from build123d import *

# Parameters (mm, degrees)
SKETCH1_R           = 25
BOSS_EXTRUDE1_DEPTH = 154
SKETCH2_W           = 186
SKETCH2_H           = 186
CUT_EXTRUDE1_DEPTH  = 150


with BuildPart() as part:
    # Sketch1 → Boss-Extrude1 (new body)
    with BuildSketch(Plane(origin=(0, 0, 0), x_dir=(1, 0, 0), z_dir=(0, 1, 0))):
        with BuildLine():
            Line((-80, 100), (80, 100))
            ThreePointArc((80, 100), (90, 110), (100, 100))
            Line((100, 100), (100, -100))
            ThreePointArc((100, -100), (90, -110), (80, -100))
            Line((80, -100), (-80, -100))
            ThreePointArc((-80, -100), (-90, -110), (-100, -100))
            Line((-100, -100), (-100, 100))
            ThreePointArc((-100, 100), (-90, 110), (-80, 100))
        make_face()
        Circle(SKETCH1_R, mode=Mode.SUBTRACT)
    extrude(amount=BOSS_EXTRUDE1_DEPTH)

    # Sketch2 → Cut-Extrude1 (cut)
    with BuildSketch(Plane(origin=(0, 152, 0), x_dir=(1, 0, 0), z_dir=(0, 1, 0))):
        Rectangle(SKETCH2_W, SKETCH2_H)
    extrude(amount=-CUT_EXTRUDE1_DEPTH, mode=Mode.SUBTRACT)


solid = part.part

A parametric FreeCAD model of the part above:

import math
import FreeCAD as App
import Part
import Sketcher

V = App.Vector
Q = App.Units.Quantity

doc = App.newDocument("Part")
body = doc.addObject("PartDesign::Body", "Body")

# Sketch on XZ plane
sketch1 = doc.addObject("Sketcher::SketchObject", "Sketch")
body.addObject(sketch1)
sketch1.AttachmentSupport = (doc.XZ_Plane, [""])
sketch1.MapMode = "FlatFace"
sketch1.addGeometry(Part.LineSegment(V(80, -100, 0), V(-80, -100, 0)), False)
sketch1.addGeometry(Part.ArcOfCircle(Part.Circle(V(-90, -100, 0), V(0, 0, 1), 10), math.radians(180), math.radians(360)), False)
sketch1.addGeometry(Part.LineSegment(V(-100, -100, 0), V(-100, 100, 0)), False)
sketch1.addGeometry(Part.ArcOfCircle(Part.Circle(V(-90, 100, 0), V(0, 0, 1), 10), math.radians(0), math.radians(180)), False)
sketch1.addGeometry(Part.LineSegment(V(-80, 100, 0), V(80, 100, 0)), False)
sketch1.addGeometry(Part.ArcOfCircle(Part.Circle(V(90, 100, 0), V(0, 0, 1), 10), math.radians(0), math.radians(180)), False)
sketch1.addGeometry(Part.LineSegment(V(100, 100, 0), V(100, -100, 0)), False)
sketch1.addGeometry(Part.ArcOfCircle(Part.Circle(V(90, -100, 0), V(0, 0, 1), 10), math.radians(180), math.radians(360)), False)
sketch1.addGeometry(Part.Circle(V(0, 0, 0), V(0, 0, 1), 25), False)
sketch1.addConstraint(Sketcher.Constraint("Coincident", 0, 2, 1, 2))
sketch1.addConstraint(Sketcher.Constraint("Tangent", 1, 1, 2, 1))
sketch1.addConstraint(Sketcher.Constraint("Tangent", 2, 2, 3, 2))
sketch1.addConstraint(Sketcher.Constraint("Coincident", 3, 1, 4, 1))
sketch1.addConstraint(Sketcher.Constraint("Coincident", 4, 2, 5, 2))
sketch1.addConstraint(Sketcher.Constraint("Tangent", 5, 1, 6, 1))
sketch1.addConstraint(Sketcher.Constraint("Tangent", 6, 2, 7, 2))
sketch1.addConstraint(Sketcher.Constraint("Coincident", 7, 1, 0, 1))
sketch1.addConstraint(Sketcher.Constraint("Horizontal", 0))
sketch1.addConstraint(Sketcher.Constraint("Vertical", 2))
sketch1.addConstraint(Sketcher.Constraint("Horizontal", 4))
sketch1.addConstraint(Sketcher.Constraint("Vertical", 6))
sketch1.addConstraint(Sketcher.Constraint("Coincident", 8, 3, -1, 1))
sketch1.addConstraint(Sketcher.Constraint("Equal", 1, 3))
sketch1.addConstraint(Sketcher.Constraint("Equal", 3, 5))
sketch1.addConstraint(Sketcher.Constraint("Equal", 5, 7))
sketch1.addConstraint(Sketcher.Constraint("Symmetric", 1, 3, 5, 3, -1, 1))
sketch1.addConstraint(Sketcher.Constraint("Horizontal", 3, 3, 5, 3))
sketch1.addConstraint(Sketcher.Constraint("Horizontal", 1, 3, 7, 3))
sketch1.addConstraint(Sketcher.Constraint("Horizontal", 7, 3, 0, 2))
sketch1.addConstraint(Sketcher.Constraint("Horizontal", 2, 2, 3, 1))
sketch1.addConstraint(Sketcher.Constraint("Diameter", 8, Q("50 mm")))
sketch1.addConstraint(Sketcher.Constraint("Radius", 1, Q("10 mm")))
sketch1.addConstraint(Sketcher.Constraint("DistanceX", 0, 2, 0, 1, Q("160 mm")))
sketch1.addConstraint(Sketcher.Constraint("DistanceY", 2, 1, 2, 2, Q("200 mm")))
pad1 = doc.addObject("PartDesign::Pad", "Pad")
body.addObject(pad1)
pad1.Profile = sketch1
pad1.Length = 154
pad1.Reversed = True

# Sketch on XZ plane
sketch2 = doc.addObject("Sketcher::SketchObject", "Sketch001")
body.addObject(sketch2)
sketch2.AttachmentSupport = (doc.XZ_Plane, [""])
sketch2.MapMode = "FlatFace"
sketch2.AttachmentOffset = App.Placement(V(0, 0, -152), App.Rotation())
sketch2.addGeometry(Part.LineSegment(V(-93, -93, 0), V(-93, 93, 0)), False)
sketch2.addGeometry(Part.LineSegment(V(-93, 93, 0), V(93, 93, 0)), False)
sketch2.addGeometry(Part.LineSegment(V(93, 93, 0), V(93, -93, 0)), False)
sketch2.addGeometry(Part.LineSegment(V(93, -93, 0), V(-93, -93, 0)), False)
sketch2.addConstraint(Sketcher.Constraint("Coincident", 0, 2, 1, 1))
sketch2.addConstraint(Sketcher.Constraint("Coincident", 1, 2, 2, 1))
sketch2.addConstraint(Sketcher.Constraint("Coincident", 2, 2, 3, 1))
sketch2.addConstraint(Sketcher.Constraint("Coincident", 3, 2, 0, 1))
sketch2.addConstraint(Sketcher.Constraint("Vertical", 0))
sketch2.addConstraint(Sketcher.Constraint("Horizontal", 1))
sketch2.addConstraint(Sketcher.Constraint("Vertical", 2))
sketch2.addConstraint(Sketcher.Constraint("Horizontal", 3))
sketch2.addConstraint(Sketcher.Constraint("Symmetric", 0, 2, 2, 2, -1, 1))
sketch2.addConstraint(Sketcher.Constraint("Equal", 3, 0))
sketch2.addConstraint(Sketcher.Constraint("DistanceX", 1, 1, 1, 2, Q("186 mm")))
pocket1 = doc.addObject("PartDesign::Pocket", "Pocket")
body.addObject(pocket1)
pocket1.Profile = sketch2
pocket1.Length = 150
pocket1.Reversed = True

doc.recompute()
